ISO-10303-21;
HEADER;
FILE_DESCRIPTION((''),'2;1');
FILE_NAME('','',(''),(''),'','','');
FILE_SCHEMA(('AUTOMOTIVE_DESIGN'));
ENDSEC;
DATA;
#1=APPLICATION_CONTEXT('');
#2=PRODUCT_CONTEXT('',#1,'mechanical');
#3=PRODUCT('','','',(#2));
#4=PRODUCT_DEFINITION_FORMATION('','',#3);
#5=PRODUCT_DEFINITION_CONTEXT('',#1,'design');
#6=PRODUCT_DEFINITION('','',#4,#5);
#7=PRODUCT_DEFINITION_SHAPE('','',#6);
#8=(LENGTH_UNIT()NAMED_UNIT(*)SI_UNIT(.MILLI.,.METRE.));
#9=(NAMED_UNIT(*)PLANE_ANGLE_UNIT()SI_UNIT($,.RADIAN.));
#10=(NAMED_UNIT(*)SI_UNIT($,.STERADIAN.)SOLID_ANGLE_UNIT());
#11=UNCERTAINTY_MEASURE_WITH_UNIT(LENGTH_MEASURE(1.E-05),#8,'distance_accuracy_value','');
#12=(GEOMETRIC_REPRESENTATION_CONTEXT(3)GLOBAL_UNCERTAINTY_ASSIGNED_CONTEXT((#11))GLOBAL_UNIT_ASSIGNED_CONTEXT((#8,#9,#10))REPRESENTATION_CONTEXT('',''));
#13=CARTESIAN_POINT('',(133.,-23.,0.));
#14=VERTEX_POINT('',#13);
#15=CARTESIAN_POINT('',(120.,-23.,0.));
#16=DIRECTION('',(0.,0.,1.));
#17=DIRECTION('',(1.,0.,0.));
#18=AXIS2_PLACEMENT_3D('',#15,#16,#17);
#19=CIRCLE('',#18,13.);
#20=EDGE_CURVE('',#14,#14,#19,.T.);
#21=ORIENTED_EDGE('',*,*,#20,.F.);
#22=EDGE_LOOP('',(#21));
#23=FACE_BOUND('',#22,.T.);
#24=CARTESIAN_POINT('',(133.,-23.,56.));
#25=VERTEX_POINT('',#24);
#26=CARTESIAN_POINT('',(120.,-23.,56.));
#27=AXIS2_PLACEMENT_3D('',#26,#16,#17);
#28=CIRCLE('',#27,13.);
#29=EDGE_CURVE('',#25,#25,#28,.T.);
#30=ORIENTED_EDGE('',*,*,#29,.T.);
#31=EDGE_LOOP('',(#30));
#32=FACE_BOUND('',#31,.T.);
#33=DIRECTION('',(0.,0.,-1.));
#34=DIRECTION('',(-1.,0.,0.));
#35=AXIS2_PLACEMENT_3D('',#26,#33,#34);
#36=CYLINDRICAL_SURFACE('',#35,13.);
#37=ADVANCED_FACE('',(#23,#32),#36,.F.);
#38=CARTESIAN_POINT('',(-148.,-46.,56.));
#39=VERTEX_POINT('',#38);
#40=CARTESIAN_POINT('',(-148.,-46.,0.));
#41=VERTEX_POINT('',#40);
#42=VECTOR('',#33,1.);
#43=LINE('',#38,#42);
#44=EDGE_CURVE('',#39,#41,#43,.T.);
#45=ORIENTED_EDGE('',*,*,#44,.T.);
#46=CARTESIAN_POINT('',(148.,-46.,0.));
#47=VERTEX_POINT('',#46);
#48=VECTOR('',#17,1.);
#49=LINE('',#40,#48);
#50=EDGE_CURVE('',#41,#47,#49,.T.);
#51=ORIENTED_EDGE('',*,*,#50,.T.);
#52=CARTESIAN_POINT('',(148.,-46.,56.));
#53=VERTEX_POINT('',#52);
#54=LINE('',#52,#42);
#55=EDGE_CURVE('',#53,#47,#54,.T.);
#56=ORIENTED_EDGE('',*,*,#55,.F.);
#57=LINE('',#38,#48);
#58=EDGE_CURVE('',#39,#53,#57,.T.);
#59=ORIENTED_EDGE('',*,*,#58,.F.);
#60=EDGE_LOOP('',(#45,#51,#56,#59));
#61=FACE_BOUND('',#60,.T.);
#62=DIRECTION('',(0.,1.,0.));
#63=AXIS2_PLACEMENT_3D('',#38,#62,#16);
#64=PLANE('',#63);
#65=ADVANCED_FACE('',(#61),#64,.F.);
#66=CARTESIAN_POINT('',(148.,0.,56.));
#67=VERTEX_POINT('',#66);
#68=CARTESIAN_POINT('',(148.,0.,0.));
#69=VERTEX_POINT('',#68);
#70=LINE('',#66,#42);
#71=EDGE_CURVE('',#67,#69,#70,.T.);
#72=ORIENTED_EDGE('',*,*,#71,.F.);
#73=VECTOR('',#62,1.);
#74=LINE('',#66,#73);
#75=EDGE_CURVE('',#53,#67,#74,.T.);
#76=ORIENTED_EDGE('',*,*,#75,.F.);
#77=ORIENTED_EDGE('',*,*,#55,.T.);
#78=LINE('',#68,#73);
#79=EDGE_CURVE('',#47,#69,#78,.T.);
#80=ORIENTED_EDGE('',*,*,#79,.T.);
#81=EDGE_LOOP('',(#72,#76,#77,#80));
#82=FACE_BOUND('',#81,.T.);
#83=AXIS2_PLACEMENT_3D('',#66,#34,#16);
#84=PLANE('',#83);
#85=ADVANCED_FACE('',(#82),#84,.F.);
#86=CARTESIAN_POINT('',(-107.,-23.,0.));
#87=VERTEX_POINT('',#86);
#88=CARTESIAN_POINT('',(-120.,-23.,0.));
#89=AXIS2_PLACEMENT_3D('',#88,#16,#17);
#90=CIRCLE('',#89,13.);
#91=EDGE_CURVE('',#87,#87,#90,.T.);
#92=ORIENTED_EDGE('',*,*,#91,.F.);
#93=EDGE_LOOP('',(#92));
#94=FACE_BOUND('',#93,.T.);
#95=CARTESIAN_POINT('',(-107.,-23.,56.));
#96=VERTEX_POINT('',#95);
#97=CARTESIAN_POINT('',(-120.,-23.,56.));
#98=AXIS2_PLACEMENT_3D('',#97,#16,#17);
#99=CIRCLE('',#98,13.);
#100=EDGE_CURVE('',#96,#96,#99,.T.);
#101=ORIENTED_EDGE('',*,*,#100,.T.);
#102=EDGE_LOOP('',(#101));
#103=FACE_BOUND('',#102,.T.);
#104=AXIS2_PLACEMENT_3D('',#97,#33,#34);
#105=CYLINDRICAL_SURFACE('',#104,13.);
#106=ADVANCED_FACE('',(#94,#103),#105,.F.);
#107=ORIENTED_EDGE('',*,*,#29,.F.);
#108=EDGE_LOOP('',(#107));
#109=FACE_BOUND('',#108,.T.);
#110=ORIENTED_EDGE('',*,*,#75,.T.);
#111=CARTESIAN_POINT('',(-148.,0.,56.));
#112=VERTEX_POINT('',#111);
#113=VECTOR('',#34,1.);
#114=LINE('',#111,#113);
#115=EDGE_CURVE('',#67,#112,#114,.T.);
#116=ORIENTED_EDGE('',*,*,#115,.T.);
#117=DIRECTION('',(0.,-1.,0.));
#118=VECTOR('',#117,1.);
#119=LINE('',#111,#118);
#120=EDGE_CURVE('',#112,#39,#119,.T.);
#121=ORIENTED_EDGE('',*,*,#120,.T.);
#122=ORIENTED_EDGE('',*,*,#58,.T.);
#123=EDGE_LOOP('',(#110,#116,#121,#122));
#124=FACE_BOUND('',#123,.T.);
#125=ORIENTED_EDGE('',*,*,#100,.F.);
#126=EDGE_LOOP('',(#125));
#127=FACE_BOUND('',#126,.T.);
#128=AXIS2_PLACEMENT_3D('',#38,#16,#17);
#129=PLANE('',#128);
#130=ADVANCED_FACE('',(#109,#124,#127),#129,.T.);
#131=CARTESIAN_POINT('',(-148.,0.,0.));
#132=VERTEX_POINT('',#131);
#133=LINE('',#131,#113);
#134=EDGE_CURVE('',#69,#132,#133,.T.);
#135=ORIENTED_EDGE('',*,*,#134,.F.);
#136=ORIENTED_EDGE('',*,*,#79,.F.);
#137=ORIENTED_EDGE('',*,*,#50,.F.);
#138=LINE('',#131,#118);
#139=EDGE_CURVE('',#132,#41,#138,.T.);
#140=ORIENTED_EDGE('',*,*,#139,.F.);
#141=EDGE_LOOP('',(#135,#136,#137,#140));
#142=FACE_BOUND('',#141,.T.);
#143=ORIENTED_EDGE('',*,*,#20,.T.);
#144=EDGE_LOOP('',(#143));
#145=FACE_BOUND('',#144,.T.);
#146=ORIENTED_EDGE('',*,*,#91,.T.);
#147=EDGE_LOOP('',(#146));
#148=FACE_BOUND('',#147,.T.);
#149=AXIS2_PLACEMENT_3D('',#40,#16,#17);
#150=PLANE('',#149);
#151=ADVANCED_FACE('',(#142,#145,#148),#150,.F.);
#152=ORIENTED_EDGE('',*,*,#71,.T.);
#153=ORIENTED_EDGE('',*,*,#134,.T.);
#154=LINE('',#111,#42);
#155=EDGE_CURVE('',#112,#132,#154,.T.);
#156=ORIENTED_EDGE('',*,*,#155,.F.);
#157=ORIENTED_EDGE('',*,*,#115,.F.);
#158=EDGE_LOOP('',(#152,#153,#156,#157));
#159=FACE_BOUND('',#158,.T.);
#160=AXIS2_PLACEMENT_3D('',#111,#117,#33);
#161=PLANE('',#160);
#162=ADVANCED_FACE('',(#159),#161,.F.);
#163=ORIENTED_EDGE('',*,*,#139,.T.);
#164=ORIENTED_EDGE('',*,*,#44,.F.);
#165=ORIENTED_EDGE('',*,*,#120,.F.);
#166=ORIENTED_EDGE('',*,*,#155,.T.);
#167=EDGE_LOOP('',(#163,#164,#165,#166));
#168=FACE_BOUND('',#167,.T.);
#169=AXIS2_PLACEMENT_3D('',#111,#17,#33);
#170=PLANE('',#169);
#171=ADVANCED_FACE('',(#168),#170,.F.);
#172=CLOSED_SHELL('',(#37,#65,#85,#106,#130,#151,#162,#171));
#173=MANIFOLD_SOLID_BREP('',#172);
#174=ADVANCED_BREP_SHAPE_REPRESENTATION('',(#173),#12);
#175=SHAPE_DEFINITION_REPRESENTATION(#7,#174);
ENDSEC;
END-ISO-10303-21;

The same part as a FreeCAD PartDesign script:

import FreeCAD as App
import Part
import Sketcher
from FreeCAD import Vector


def add_polygon(sketch, points):
    """Adds a closed chain of lines whose ends are joined by coincident constraints."""
    first, n = sketch.GeometryCount, len(points)
    for a, b in zip(points, points[1:] + points[:1]):
        sketch.addGeometry(Part.LineSegment(App.Vector(*a, 0), App.Vector(*b, 0)), False)
    for i in range(n):
        sketch.addConstraint(Sketcher.Constraint("Coincident", first + i, 2, first + (i + 1) % n, 1))

doc = App.newDocument("Part")
body = doc.addObject("PartDesign::Body", "Body")

# Sketch on XY plane
sketch1 = body.newObject("Sketcher::SketchObject", "Sketch")
sketch1.AttachmentSupport = (doc.getObject("XY_Plane"), [""])
sketch1.MapMode = "FlatFace"
add_polygon(sketch1, [(-148, 0), (-148, -46), (148, -46), (148, 0)])  # lines 0-3
sketch1.addGeometry(Part.Circle(Vector(-120, -23, 0), Vector(0, 0, 1), 13), False)  # 4
sketch1.addGeometry(Part.Circle(Vector(120, -23, 0), Vector(0, 0, 1), 13), False)  # 5
sketch1.addConstraint(Sketcher.Constraint("Vertical", 0))
sketch1.addConstraint(Sketcher.Constraint("Horizontal", 1))
sketch1.addConstraint(Sketcher.Constraint("Vertical", 2))
sketch1.addConstraint(Sketcher.Constraint("Horizontal", 3))
sketch1.addConstraint(Sketcher.Constraint("Equal", 4, 5))
sketch1.addConstraint(Sketcher.Constraint("Symmetric", 2, 2, 3, 2, -1, 1))
sketch1.addConstraint(Sketcher.Constraint("Symmetric", 4, 3, 5, 3, -2))
sketch1.addConstraint(Sketcher.Constraint("Diameter", 4, 26.0))
sketch1.addConstraint(Sketcher.Constraint("DistanceX", 1, 1, 1, 2, 296.0))
sketch1.addConstraint(Sketcher.Constraint("DistanceY", 0, 2, 0, 1, 46.0))
sketch1.addConstraint(Sketcher.Constraint("DistanceX", 4, 3, -1, 1, 120.0))
sketch1.addConstraint(Sketcher.Constraint("DistanceY", 4, 3, -1, 1, 23.0))
pad1 = body.newObject("PartDesign::Pad", "Pad")
pad1.Profile = sketch1
pad1.Length = 56

doc.recompute()
